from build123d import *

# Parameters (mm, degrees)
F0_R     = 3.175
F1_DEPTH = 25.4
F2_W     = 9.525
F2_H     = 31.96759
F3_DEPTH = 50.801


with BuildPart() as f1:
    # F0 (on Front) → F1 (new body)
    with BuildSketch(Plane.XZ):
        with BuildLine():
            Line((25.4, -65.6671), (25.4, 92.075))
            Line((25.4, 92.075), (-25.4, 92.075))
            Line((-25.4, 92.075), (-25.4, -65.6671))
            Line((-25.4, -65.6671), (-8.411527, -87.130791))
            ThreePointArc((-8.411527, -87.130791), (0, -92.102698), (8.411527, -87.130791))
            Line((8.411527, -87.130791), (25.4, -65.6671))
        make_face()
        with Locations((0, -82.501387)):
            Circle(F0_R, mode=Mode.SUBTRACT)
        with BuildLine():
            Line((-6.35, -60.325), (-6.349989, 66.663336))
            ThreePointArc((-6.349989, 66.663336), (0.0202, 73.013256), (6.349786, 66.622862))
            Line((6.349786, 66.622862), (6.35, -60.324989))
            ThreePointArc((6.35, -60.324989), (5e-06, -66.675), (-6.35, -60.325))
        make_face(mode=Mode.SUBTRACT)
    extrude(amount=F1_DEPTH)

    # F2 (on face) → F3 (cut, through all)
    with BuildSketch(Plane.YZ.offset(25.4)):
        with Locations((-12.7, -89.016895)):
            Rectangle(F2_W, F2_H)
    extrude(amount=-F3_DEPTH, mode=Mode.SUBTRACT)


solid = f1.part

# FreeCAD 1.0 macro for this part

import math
import FreeCAD as App
import Part
import Sketcher

V = App.Vector
Q = App.Units.Quantity


def add_polygon(sketch, points):
    """Adds a closed chain of lines whose ends are joined by coincident constraints."""
    first, n = sketch.GeometryCount, len(points)
    for a, b in zip(points, points[1:] + points[:1]):
        sketch.addGeometry(Part.LineSegment(App.Vector(*a, 0), App.Vector(*b, 0)), False)
    for i in range(n):
        sketch.addConstraint(Sketcher.Constraint("Coincident", first + i, 2, first + (i + 1) % n, 1))

doc = App.newDocument("Part")
body = doc.addObject("PartDesign::Body", "Body")

# Sketch on XZ plane
sketch1 = body.newObject("Sketcher::SketchObject", "Sketch")
sketch1.AttachmentSupport = (doc.getObject("XZ_Plane"), [""])
sketch1.MapMode = "FlatFace"
sketch1.addGeometry([
    Part.LineSegment(V(25.4, -65.6671, 0), V(25.4, 92.075, 0)),  # 0
    Part.LineSegment(V(25.4, 92.075, 0), V(-25.4, 92.075, 0)),  # 1
    Part.LineSegment(V(-25.4, 92.075, 0), V(-25.4, -65.6671, 0)),  # 2
    Part.LineSegment(V(-25.4, -65.6671, 0), V(-8.411527, -87.130791, 0)),  # 3
    Part.ArcOfCircle(Part.Circle(V(0, -82.501388, 0), V(0, 0, 1), 9.60131), math.radians(-151.173187), math.radians(-28.826813)),  # 4
    Part.LineSegment(V(8.411527, -87.130791, 0), V(25.4, -65.6671, 0)),  # 5
    Part.Circle(V(0, -82.501387, 0), V(0, 0, 1), 3.175),  # 6
    Part.ArcOfCircle(Part.Circle(V(0, -60.325, 0), V(0, 0, 1), 6.35), math.radians(180), math.radians(360.000099)),  # 7
    Part.LineSegment(V(-6.35, -60.325, 0), V(-6.349989, 66.663336, 0)),  # 8
    Part.ArcOfCircle(Part.Circle(V(-0.000037, 66.663336, 0), V(0, 0, 1), 6.349952), math.radians(-0.365203), math.radians(180.000002)),  # 9
    Part.LineSegment(V(6.349786, 66.622862, 0), V(6.35, -60.324989, 0)),  # 10
], False)
sketch1.addConstraint([
    Sketcher.Constraint("Coincident", 0, 2, 1, 1),
    Sketcher.Constraint("Coincident", 1, 2, 2, 1),
    Sketcher.Constraint("Coincident", 2, 2, 3, 1),
    Sketcher.Constraint("Coincident", 3, 2, 4, 1),
    Sketcher.Constraint("Coincident", 4, 2, 5, 1),
    Sketcher.Constraint("Coincident", 5, 2, 0, 1),
    Sketcher.Constraint("Coincident", 7, 1, 8, 1),
    Sketcher.Constraint("Coincident", 8, 2, 9, 2),
    Sketcher.Constraint("Coincident", 9, 1, 10, 1),
    Sketcher.Constraint("Coincident", 10, 2, 7, 2),
    Sketcher.Constraint("Vertical", 0),
    Sketcher.Constraint("Horizontal", 1),
    Sketcher.Constraint("Vertical", 2),
    Sketcher.Constraint("Coincident", 6, 3, 4, 3),
    Sketcher.Constraint("PointOnObject", 4, 3, -2),
    Sketcher.Constraint("PointOnObject", 7, 3, -2),
    Sketcher.Constraint("Diameter", 6, Q("0.25 in")),
    Sketcher.Constraint("DistanceX", 1, 2, 1, 1, Q("2 in")),
    Sketcher.Constraint("Radius", 7, Q("0.25 in")),
    Sketcher.Constraint("DistanceX", -1, 1, 0, 2, Q("1 in")),
    Sketcher.Constraint("DistanceY", 7, 3, 0, 2, Q("6 in")),
    Sketcher.Constraint("DistanceY", 7, 3, -1, 1, Q("2.375 in")),
    Sketcher.Constraint("DistanceY", 7, 1, -1, 1, Q("2.375 in")),
    Sketcher.Constraint("Radius", 4, 9.60131),
    Sketcher.Constraint("Radius", 9, 6.349952),
    Sketcher.Constraint("DistanceY", 0, 1, 0, 2, 157.7421),
    Sketcher.Constraint("DistanceY", 2, 2, 2, 1, 157.7421),
    Sketcher.Constraint("DistanceY", 4, 3, 10, 2, 22.176399),
    Sketcher.Constraint("Distance", 10, 126.947851),
    Sketcher.Constraint("DistanceY", 3, 2, -1, 1, 87.130791),
    Sketcher.Constraint("DistanceY", 4, 2, -1, 1, 87.130791),
    Sketcher.Constraint("DistanceX", 8, 2, -1, 1, 6.349989),
    Sketcher.Constraint("DistanceY", -1, 1, 9, 1, 66.622862),
    Sketcher.Constraint("Distance", 8, 126.988336),
    Sketcher.Constraint("DistanceY", -1, 1, 9, 3, 66.663336),
])
pad1 = body.newObject("PartDesign::Pad", "Pad")
pad1.Profile = sketch1
pad1.Length = Q("1 in")

# Sketch on YZ plane
sketch2 = body.newObject("Sketcher::SketchObject", "Sketch001")
sketch2.AttachmentSupport = (doc.getObject("YZ_Plane"), [""])
sketch2.MapMode = "FlatFace"
sketch2.AttachmentOffset = App.Placement(V(0, 0, 1 * 25.4), App.Rotation())
add_polygon(sketch2, [(-17, -73), (-17, -105), (-8, -105), (-8, -73)])  # lines 0-3
sketch2.addConstraint([
    Sketcher.Constraint("Vertical", 0),
    Sketcher.Constraint("Horizontal", 1),
    Sketcher.Constraint("Vertical", 2),
    Sketcher.Constraint("Horizontal", 3),
    Sketcher.Constraint("DistanceX", 1, 1, 1, 2, Q("0.375 in")),
    Sketcher.Constraint("DistanceX", 0, 2, -1, 1, Q("0.6875 in")),
    Sketcher.Constraint("DistanceY", 0, 2, 0, 1, 31.96759),
    Sketcher.Constraint("DistanceY", 2, 2, -1, 1, 73.0331),
])
pocket1 = body.newObject("PartDesign::Pocket", "Pocket")
pocket1.Profile = sketch2
pocket1.Type = "ThroughAll"

doc.recompute()
